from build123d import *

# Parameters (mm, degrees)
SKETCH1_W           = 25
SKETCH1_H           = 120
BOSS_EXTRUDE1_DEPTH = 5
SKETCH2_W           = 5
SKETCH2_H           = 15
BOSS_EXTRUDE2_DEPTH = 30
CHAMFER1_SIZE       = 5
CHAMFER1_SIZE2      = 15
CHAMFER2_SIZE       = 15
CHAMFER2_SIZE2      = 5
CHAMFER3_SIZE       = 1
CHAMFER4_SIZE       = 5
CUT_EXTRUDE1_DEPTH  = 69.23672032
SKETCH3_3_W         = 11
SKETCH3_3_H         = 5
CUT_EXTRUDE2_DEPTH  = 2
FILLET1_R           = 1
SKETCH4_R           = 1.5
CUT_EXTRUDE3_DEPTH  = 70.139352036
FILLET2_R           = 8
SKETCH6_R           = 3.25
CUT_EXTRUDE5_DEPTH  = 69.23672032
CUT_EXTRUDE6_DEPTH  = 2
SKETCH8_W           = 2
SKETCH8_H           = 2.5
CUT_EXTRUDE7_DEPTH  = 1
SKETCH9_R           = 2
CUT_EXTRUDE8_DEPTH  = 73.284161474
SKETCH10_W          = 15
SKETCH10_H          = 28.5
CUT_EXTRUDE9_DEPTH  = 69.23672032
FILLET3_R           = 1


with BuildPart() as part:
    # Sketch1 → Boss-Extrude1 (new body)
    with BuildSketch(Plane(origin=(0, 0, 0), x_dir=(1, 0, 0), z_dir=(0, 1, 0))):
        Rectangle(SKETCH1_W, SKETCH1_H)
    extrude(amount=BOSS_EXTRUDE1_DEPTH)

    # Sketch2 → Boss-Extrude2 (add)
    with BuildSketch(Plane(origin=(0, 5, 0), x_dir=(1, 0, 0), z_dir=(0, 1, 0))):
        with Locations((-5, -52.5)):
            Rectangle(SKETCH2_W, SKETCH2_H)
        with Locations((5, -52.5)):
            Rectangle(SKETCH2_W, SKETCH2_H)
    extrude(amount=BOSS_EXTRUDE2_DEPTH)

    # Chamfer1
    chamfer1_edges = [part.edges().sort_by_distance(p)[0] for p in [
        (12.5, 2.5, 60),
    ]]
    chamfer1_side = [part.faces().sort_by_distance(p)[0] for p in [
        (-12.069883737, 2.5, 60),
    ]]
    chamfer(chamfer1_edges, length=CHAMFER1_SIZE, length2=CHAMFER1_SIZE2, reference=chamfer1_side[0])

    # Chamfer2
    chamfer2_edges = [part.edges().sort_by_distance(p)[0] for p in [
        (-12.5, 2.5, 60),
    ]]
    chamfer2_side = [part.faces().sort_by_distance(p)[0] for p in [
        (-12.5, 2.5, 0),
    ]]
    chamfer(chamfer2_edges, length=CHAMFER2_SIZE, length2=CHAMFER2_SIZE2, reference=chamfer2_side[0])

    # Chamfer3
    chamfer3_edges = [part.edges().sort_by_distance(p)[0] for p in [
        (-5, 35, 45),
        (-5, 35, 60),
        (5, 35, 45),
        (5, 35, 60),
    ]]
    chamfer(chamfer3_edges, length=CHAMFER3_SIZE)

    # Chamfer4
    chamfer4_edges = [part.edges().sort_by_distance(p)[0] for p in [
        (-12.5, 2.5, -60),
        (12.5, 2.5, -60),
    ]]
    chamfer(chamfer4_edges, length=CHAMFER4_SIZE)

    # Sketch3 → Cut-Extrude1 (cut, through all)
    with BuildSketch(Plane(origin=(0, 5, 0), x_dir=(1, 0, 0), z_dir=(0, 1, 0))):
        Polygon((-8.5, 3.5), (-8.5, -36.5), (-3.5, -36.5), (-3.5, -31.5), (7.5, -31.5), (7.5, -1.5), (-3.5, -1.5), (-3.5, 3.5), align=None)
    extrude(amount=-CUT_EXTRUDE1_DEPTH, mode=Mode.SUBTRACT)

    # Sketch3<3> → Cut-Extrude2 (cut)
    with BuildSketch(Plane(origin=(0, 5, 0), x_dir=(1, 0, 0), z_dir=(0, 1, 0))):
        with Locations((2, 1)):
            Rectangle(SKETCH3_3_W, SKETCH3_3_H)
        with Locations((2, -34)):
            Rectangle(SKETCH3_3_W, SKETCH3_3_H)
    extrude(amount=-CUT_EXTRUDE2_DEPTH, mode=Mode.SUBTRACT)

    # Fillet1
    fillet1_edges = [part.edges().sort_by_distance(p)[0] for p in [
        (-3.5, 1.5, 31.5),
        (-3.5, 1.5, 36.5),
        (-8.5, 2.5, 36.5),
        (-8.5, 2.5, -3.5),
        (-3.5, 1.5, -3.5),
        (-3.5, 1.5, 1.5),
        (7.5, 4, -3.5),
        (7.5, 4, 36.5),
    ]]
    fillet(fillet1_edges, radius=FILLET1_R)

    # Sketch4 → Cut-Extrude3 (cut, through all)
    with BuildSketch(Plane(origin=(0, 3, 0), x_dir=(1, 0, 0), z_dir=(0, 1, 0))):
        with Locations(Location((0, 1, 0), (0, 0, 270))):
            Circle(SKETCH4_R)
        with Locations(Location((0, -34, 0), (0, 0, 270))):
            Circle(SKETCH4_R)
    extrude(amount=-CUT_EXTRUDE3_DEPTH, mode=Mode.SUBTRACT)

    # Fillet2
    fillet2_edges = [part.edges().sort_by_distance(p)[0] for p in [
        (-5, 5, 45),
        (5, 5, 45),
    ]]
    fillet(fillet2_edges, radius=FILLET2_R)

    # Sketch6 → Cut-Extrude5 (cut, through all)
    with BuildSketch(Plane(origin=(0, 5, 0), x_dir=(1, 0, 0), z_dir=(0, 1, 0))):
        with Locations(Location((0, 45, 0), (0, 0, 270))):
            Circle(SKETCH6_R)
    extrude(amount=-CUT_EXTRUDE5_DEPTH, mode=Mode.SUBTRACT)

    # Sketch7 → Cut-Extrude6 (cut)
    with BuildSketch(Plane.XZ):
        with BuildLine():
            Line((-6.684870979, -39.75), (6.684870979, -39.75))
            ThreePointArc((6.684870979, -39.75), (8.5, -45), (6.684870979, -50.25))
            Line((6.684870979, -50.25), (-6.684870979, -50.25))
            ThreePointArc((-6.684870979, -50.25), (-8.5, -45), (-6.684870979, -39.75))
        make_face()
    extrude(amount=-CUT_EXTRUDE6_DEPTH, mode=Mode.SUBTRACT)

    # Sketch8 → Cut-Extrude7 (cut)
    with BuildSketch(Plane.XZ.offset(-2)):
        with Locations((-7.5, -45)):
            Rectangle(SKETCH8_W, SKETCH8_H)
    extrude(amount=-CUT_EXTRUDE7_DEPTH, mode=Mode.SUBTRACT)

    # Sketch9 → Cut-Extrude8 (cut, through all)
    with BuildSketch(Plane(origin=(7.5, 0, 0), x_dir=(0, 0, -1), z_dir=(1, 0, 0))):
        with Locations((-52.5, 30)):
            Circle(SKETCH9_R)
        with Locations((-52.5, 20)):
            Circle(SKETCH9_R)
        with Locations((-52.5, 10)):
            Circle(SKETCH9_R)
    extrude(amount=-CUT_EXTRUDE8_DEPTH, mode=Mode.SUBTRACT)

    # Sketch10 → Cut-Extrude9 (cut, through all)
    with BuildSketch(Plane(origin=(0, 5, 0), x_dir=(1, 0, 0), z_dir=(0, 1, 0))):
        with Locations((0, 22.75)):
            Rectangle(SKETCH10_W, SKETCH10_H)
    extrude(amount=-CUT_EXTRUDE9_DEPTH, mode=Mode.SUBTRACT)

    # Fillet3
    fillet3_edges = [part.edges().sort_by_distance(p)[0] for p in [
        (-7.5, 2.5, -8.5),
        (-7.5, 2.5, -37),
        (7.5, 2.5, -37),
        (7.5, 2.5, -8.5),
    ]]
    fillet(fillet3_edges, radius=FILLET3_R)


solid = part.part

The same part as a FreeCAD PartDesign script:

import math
import FreeCAD as App
import Part
import Sketcher


def edges_at(feature, points):
    """Names of the edges that pass closest to the given points."""
    edges = feature.Shape.Edges
    near = lambda p: min(range(len(edges)), key=lambda i: edges[i].distToShape(Part.Vertex(*p))[0])
    return sorted({f"Edge{near(p) + 1}" for p in points})

doc = App.newDocument("Part")
body = doc.addObject("PartDesign::Body", "Body")

# Sketch on XZ plane
sketch1 = body.newObject("Sketcher::SketchObject", "Sketch")
sketch1.AttachmentSupport = (doc.getObject("XZ_Plane"), [""])
sketch1.MapMode = "FlatFace"
sketch1.addGeometry([
    Part.LineSegment(App.Vector(-12, -60, 0), App.Vector(-12, 60, 0)),
    Part.LineSegment(App.Vector(-12, 60, 0), App.Vector(12, 60, 0)),
    Part.LineSegment(App.Vector(12, 60, 0), App.Vector(12, -60, 0)),
    Part.LineSegment(App.Vector(12, -60, 0), App.Vector(-12, -60, 0)),
], False)
sketch1.addConstraint([
    Sketcher.Constraint("Coincident", 0, 2, 1, 1),
    Sketcher.Constraint("Coincident", 1, 2, 2, 1),
    Sketcher.Constraint("Coincident", 2, 2, 3, 1),
    Sketcher.Constraint("Coincident", 3, 2, 0, 1),
    Sketcher.Constraint("Vertical", 0),
    Sketcher.Constraint("Horizontal", 1),
    Sketcher.Constraint("Vertical", 2),
    Sketcher.Constraint("Horizontal", 3),
    Sketcher.Constraint("Symmetric", 0, 2, 2, 2, -1, 1),
    Sketcher.Constraint("DistanceX", 1, 1, 1, 2, 25.0),
    Sketcher.Constraint("DistanceY", 0, 1, 0, 2, 120.0),
])
pad1 = body.newObject("PartDesign::Pad", "Pad")
pad1.Profile = sketch1
pad1.Length = 5
pad1.Reversed = True

# Sketch on XZ plane
sketch2 = body.newObject("Sketcher::SketchObject", "Sketch001")
sketch2.AttachmentSupport = (doc.getObject("XZ_Plane"), [""])
sketch2.MapMode = "FlatFace"
sketch2.AttachmentOffset = App.Placement(App.Vector(0, 0, -5), App.Rotation())
sketch2.addGeometry([
    Part.LineSegment(App.Vector(-8, 45, 0), App.Vector(-8, 60, 0)),  # 0
    Part.LineSegment(App.Vector(-8, 60, 0), App.Vector(-2, 60, 0)),  # 1
    Part.LineSegment(App.Vector(-2, 60, 0), App.Vector(-2, 45, 0)),  # 2
    Part.LineSegment(App.Vector(-2, 45, 0), App.Vector(-8, 45, 0)),  # 3
    Part.LineSegment(App.Vector(2, 45, 0), App.Vector(2, 60, 0)),  # 4
    Part.LineSegment(App.Vector(2, 60, 0), App.Vector(8, 60, 0)),  # 5
    Part.LineSegment(App.Vector(8, 60, 0), App.Vector(8, 45, 0)),  # 6
    Part.LineSegment(App.Vector(8, 45, 0), App.Vector(2, 45, 0)),  # 7
], False)
sketch2.addConstraint([
    Sketcher.Constraint("Coincident", 0, 2, 1, 1),
    Sketcher.Constraint("Coincident", 1, 2, 2, 1),
    Sketcher.Constraint("Coincident", 2, 2, 3, 1),
    Sketcher.Constraint("Coincident", 3, 2, 0, 1),
    Sketcher.Constraint("Coincident", 4, 2, 5, 1),
    Sketcher.Constraint("Coincident", 5, 2, 6, 1),
    Sketcher.Constraint("Coincident", 6, 2, 7, 1),
    Sketcher.Constraint("Coincident", 7, 2, 4, 1),
    Sketcher.Constraint("Vertical", 0),
    Sketcher.Constraint("Horizontal", 1),
    Sketcher.Constraint("Vertical", 2),
    Sketcher.Constraint("Horizontal", 3),
    Sketcher.Constraint("Vertical", 4),
    Sketcher.Constraint("Horizontal", 5),
    Sketcher.Constraint("Vertical", 6),
    Sketcher.Constraint("Horizontal", 7),
    Sketcher.Constraint("Symmetric", 1, 2, 4, 2, -2),
    Sketcher.Constraint("Symmetric", 3, 2, 6, 2, -2),
    Sketcher.Constraint("DistanceX", 1, 1, 1, 2, 5.0),
    Sketcher.Constraint("DistanceY", 0, 1, 0, 2, 15.0),
    Sketcher.Constraint("DistanceY", -1, 1, 0, 2, 60.0),
    Sketcher.Constraint("DistanceX", 1, 2, 4, 2, 5.0),
])
pad2 = body.newObject("PartDesign::Pad", "Pad001")
pad2.Profile = sketch2
pad2.Length = 30
pad2.Reversed = True
doc.recompute()

chamfer = body.newObject("PartDesign::Chamfer", "Chamfer")
chamfer.Base = (pad2, edges_at(pad2, [(12.5, 2.5, 60)]))
chamfer.ChamferType = "Two distances"
chamfer.Size = 5
chamfer.Size2 = 15
chamfer.FlipDirection = True
doc.recompute()

chamfer2 = body.newObject("PartDesign::Chamfer", "Chamfer001")
chamfer2.Base = (chamfer, edges_at(chamfer, [(-12.5, 2.5, 60)]))
chamfer2.ChamferType = "Two distances"
chamfer2.Size = 15
chamfer2.Size2 = 5
chamfer2.FlipDirection = True
doc.recompute()

chamfer3 = body.newObject("PartDesign::Chamfer", "Chamfer002")
chamfer3.Base = (chamfer2, edges_at(chamfer2, [
    (-5, 35, 45),
    (-5, 35, 60),
    (5, 35, 45),
    (5, 35, 60),
]))
chamfer3.Size = 1
doc.recompute()

chamfer4 = body.newObject("PartDesign::Chamfer", "Chamfer003")
chamfer4.Base = (chamfer3, edges_at(chamfer3, [(-12.5, 2.5, -60), (12.5, 2.5, -60)]))
chamfer4.Size = 5

# Sketch on XZ plane
sketch3 = body.newObject("Sketcher::SketchObject", "Sketch002")
sketch3.AttachmentSupport = (doc.getObject("XZ_Plane"), [""])
sketch3.MapMode = "FlatFace"
sketch3.AttachmentOffset = App.Placement(App.Vector(0, 0, -5), App.Rotation())
sketch3.addGeometry([
    Part.LineSegment(App.Vector(-8, -4, 0), App.Vector(-8, 36, 0)),  # 0
    Part.LineSegment(App.Vector(-8, 36, 0), App.Vector(-4, 36, 0)),  # 1
    Part.LineSegment(App.Vector(-4, 36, 0), App.Vector(-4, 32, 0)),  # 2
    Part.LineSegment(App.Vector(-4, 32, 0), App.Vector(8, 32, 0)),  # 3
    Part.LineSegment(App.Vector(8, 32, 0), App.Vector(8, 2, 0)),  # 4
    Part.LineSegment(App.Vector(8, 2, 0), App.Vector(-4, 2, 0)),  # 5
    Part.LineSegment(App.Vector(-4, 2, 0), App.Vector(-4, -4, 0)),  # 6
    Part.LineSegment(App.Vector(-4, -4, 0), App.Vector(-8, -4, 0)),  # 7
], False)
sketch3.addConstraint([
    Sketcher.Constraint("Coincident", 0, 2, 1, 1),
    Sketcher.Constraint("Coincident", 1, 2, 2, 1),
    Sketcher.Constraint("Coincident", 2, 2, 3, 1),
    Sketcher.Constraint("Coincident", 3, 2, 4, 1),
    Sketcher.Constraint("Coincident", 4, 2, 5, 1),
    Sketcher.Constraint("Coincident", 5, 2, 6, 1),
    Sketcher.Constraint("Coincident", 6, 2, 7, 1),
    Sketcher.Constraint("Coincident", 7, 2, 0, 1),
    Sketcher.Constraint("Vertical", 0),
    Sketcher.Constraint("Horizontal", 1),
    Sketcher.Constraint("Vertical", 2),
    Sketcher.Constraint("Horizontal", 3),
    Sketcher.Constraint("Vertical", 4),
    Sketcher.Constraint("Horizontal", 5),
    Sketcher.Constraint("Vertical", 6),
    Sketcher.Constraint("Horizontal", 7),
    Sketcher.Constraint("Vertical", 2, 2, 5, 2),
    Sketcher.Constraint("Equal", 7, 2),
    Sketcher.Constraint("Equal", 2, 6),
    Sketcher.Constraint("DistanceX", 1, 1, 1, 2, 5.0),
    Sketcher.Constraint("DistanceX", 3, 1, 3, 2, 11.0),
    Sketcher.Constraint("DistanceY", 0, 1, 0, 2, 40.0),
    Sketcher.Constraint("DistanceX", 0, 2, -1, 1, 8.5),
    Sketcher.Constraint("DistanceY", -1, 1, 0, 2, 36.5),
])
pocket1 = body.newObject("PartDesign::Pocket", "Pocket")
pocket1.Profile = sketch3
pocket1.Type = "ThroughAll"
pocket1.Reversed = True

# Sketch on XZ plane
sketch4 = body.newObject("Sketcher::SketchObject", "Sketch003")
sketch4.AttachmentSupport = (doc.getObject("XZ_Plane"), [""])
sketch4.MapMode = "FlatFace"
sketch4.AttachmentOffset = App.Placement(App.Vector(0, 0, -5), App.Rotation())
sketch4.addGeometry([
    Part.LineSegment(App.Vector(-4, -4, 0), App.Vector(-4, 2, 0)),  # 0
    Part.LineSegment(App.Vector(-4, 2, 0), App.Vector(8, 2, 0)),  # 1
    Part.LineSegment(App.Vector(8, 2, 0), App.Vector(8, -4, 0)),  # 2
    Part.LineSegment(App.Vector(8, -4, 0), App.Vector(-4, -4, 0)),  # 3
    Part.LineSegment(App.Vector(-4, 32, 0), App.Vector(-4, 36, 0)),  # 4
    Part.LineSegment(App.Vector(-4, 36, 0), App.Vector(8, 36, 0)),  # 5
    Part.LineSegment(App.Vector(8, 36, 0), App.Vector(8, 32, 0)),  # 6
    Part.LineSegment(App.Vector(8, 32, 0), App.Vector(-4, 32, 0)),  # 7
], False)
sketch4.addConstraint([
    Sketcher.Constraint("Coincident", 0, 2, 1, 1),
    Sketcher.Constraint("Coincident", 1, 2, 2, 1),
    Sketcher.Constraint("Coincident", 2, 2, 3, 1),
    Sketcher.Constraint("Coincident", 3, 2, 0, 1),
    Sketcher.Constraint("Coincident", 4, 2, 5, 1),
    Sketcher.Constraint("Coincident", 5, 2, 6, 1),
    Sketcher.Constraint("Coincident", 6, 2, 7, 1),
    Sketcher.Constraint("Coincident", 7, 2, 4, 1),
    Sketcher.Constraint("Vertical", 0),
    Sketcher.Constraint("Horizontal", 1),
    Sketcher.Constraint("Vertical", 2),
    Sketcher.Constraint("Horizontal", 3),
    Sketcher.Constraint("Vertical", 4),
    Sketcher.Constraint("Horizontal", 5),
    Sketcher.Constraint("Vertical", 6),
    Sketcher.Constraint("Horizontal", 7),
    Sketcher.Constraint("Vertical", 3, 2, 4, 2),
    Sketcher.Constraint("Vertical", 2, 2, 5, 2),
    Sketcher.Constraint("Equal", 2, 4),
    Sketcher.Constraint("DistanceX", 1, 1, 1, 2, 11.0),
    Sketcher.Constraint("DistanceY", 0, 1, 0, 2, 5.0),
    Sketcher.Constraint("DistanceY", 0, 2, 4, 2, 35.0),
    Sketcher.Constraint("DistanceX", 0, 2, -1, 1, 3.5),
    Sketcher.Constraint("DistanceY", -1, 1, 0, 2, 1.5),
])
pocket2 = body.newObject("PartDesign::Pocket", "Pocket001")
pocket2.Profile = sketch4
pocket2.Length = 2
pocket2.Reversed = True
doc.recompute()

fillet = body.newObject("PartDesign::Fillet", "Fillet")
fillet.Base = (pocket2, edges_at(pocket2, [
    (-3.5, 1.5, 31.5),
    (-3.5, 1.5, 36.5),
    (-8.5, 2.5, 36.5),
    (-8.5, 2.5, -3.5),
    (-3.5, 1.5, -3.5),
    (-3.5, 1.5, 1.5),
    (7.5, 4, -3.5),
    (7.5, 4, 36.5),
]))
fillet.Radius = 1

# Sketch on XZ plane
sketch5 = body.newObject("Sketcher::SketchObject", "Sketch004")
sketch5.AttachmentSupport = (doc.getObject("XZ_Plane"), [""])
sketch5.MapMode = "FlatFace"
sketch5.AttachmentOffset = App.Placement(App.Vector(0, 0, -3), App.Rotation())
sketch5.addGeometry([
    Part.Circle(App.Vector(0, -1, 0), App.Vector(0, 0, 1), 1.5),
    Part.Circle(App.Vector(0, 34, 0), App.Vector(0, 0, 1), 1.5),
], False)
sketch5.addConstraint([
    Sketcher.Constraint("Equal", 0, 1),
    Sketcher.Constraint("PointOnObject", 0, 3, -2),
    Sketcher.Constraint("PointOnObject", 1, 3, -2),
    Sketcher.Constraint("Diameter", 0, 3.0),
    Sketcher.Constraint("DistanceY", 0, 3, -1, 1, 1.0),
    Sketcher.Constraint("DistanceY", -1, 1, 1, 3, 34.0),
])
pocket3 = body.newObject("PartDesign::Pocket", "Pocket002")
pocket3.Profile = sketch5
pocket3.Type = "ThroughAll"
pocket3.Reversed = True
doc.recompute()

fillet2 = body.newObject("PartDesign::Fillet", "Fillet001")
fillet2.Base = (pocket3, edges_at(pocket3, [(-5, 5, 45), (5, 5, 45)]))
fillet2.Radius = 8

# Sketch on XZ plane
sketch6 = body.newObject("Sketcher::SketchObject", "Sketch005")
sketch6.AttachmentSupport = (doc.getObject("XZ_Plane"), [""])
sketch6.MapMode = "FlatFace"
sketch6.AttachmentOffset = App.Placement(App.Vector(0, 0, -5), App.Rotation())
sketch6.addGeometry(Part.Circle(App.Vector(0, -45, 0), App.Vector(0, 0, 1), 3.2), False)
sketch6.addConstraint([
    Sketcher.Constraint("PointOnObject", 0, 3, -2),
    Sketcher.Constraint("Diameter", 0, 6.5),
    Sketcher.Constraint("DistanceY", 0, 3, -1, 1, 45.0),
])
pocket4 = body.newObject("PartDesign::Pocket", "Pocket003")
pocket4.Profile = sketch6
pocket4.Type = "ThroughAll"
pocket4.Reversed = True

# Sketch on XZ plane
sketch7 = body.newObject("Sketcher::SketchObject", "Sketch006")
sketch7.AttachmentSupport = (doc.getObject("XZ_Plane"), [""])
sketch7.MapMode = "FlatFace"
sketch7.addGeometry([
    Part.LineSegment(App.Vector(7, -40, 0), App.Vector(-7, -40, 0)),
    Part.ArcOfCircle(Part.Circle(App.Vector(0, -45, 0), App.Vector(0, 0, 1), 9), math.radians(142), math.radians(218)),
    Part.LineSegment(App.Vector(-7, -50, 0), App.Vector(7, -50, 0)),
    Part.ArcOfCircle(Part.Circle(App.Vector(0, -45, 0), App.Vector(0, 0, 1), 9), math.radians(-38), math.radians(38)),
], False)
sketch7.addConstraint([
    Sketcher.Constraint("Coincident", 0, 2, 1, 1),
    Sketcher.Constraint("Coincident", 1, 2, 2, 1),
    Sketcher.Constraint("Coincident", 2, 2, 3, 1),
    Sketcher.Constraint("Coincident", 3, 2, 0, 1),
    Sketcher.Constraint("Horizontal", 0),
    Sketcher.Constraint("Horizontal", 2),
    Sketcher.Constraint("Coincident", 3, 3, 1, 3),
    Sketcher.Constraint("Equal", 1, 3),
    Sketcher.Constraint("PointOnObject", 1, 3, -2),
    Sketcher.Constraint("Vertical", 0, 2, 1, 2),
    Sketcher.Constraint("Radius", 1, 8.5),
    Sketcher.Constraint("DistanceY", 1, 3, -1, 1, 45.0),
    Sketcher.Constraint("DistanceY", 1, 2, 0, 2, 10.5),
])
pocket5 = body.newObject("PartDesign::Pocket", "Pocket004")
pocket5.Profile = sketch7
pocket5.Length = 2

# Sketch on XZ plane
sketch8 = body.newObject("Sketcher::SketchObject", "Sketch007")
sketch8.AttachmentSupport = (doc.getObject("XZ_Plane"), [""])
sketch8.MapMode = "FlatFace"
sketch8.AttachmentOffset = App.Placement(App.Vector(0, 0, -2), App.Rotation())
sketch8.addGeometry([
    Part.LineSegment(App.Vector(-8.5, -43.8, 0), App.Vector(-8.5, -46.2, 0)),
    Part.LineSegment(App.Vector(-8.5, -46.2, 0), App.Vector(-6.5, -46.2, 0)),
    Part.LineSegment(App.Vector(-6.5, -46.2, 0), App.Vector(-6.5, -43.8, 0)),
    Part.LineSegment(App.Vector(-6.5, -43.8, 0), App.Vector(-8.5, -43.8, 0)),
], False)
sketch8.addConstraint([
    Sketcher.Constraint("Coincident", 0, 2, 1, 1),
    Sketcher.Constraint("Coincident", 1, 2, 2, 1),
    Sketcher.Constraint("Coincident", 2, 2, 3, 1),
    Sketcher.Constraint("Coincident", 3, 2, 0, 1),
    Sketcher.Constraint("Vertical", 0),
    Sketcher.Constraint("Horizontal", 1),
    Sketcher.Constraint("Vertical", 2),
    Sketcher.Constraint("Horizontal", 3),
    Sketcher.Constraint("DistanceX", 1, 1, 1, 2, 2.0),
    Sketcher.Constraint("DistanceY", 0, 2, 0, 1, 2.5),
    Sketcher.Constraint("DistanceX", 0, 2, -1, 1, 8.5),
    Sketcher.Constraint("DistanceY", 0, 2, -1, 1, 46.25),
])
pocket6 = body.newObject("PartDesign::Pocket", "Pocket005")
pocket6.Profile = sketch8
pocket6.Length = 1

# Sketch on YZ plane
sketch9 = body.newObject("Sketcher::SketchObject", "Sketch008")
sketch9.AttachmentSupport = (doc.getObject("YZ_Plane"), [""])
sketch9.MapMode = "FlatFace"
sketch9.AttachmentOffset = App.Placement(App.Vector(0, 0, 7.5), App.Rotation())
sketch9.addGeometry([
    Part.Circle(App.Vector(30, 52.5, 0), App.Vector(0, 0, 1), 2),
    Part.Circle(App.Vector(20, 52.5, 0), App.Vector(0, 0, 1), 2),
    Part.Circle(App.Vector(10, 52.5, 0), App.Vector(0, 0, 1), 2),
], False)
sketch9.addConstraint([
    Sketcher.Constraint("Equal", 0, 1),
    Sketcher.Constraint("Equal", 1, 2),
    Sketcher.Constraint("Horizontal", 0, 3, 1, 3),
    Sketcher.Constraint("Horizontal", 1, 3, 2, 3),
    Sketcher.Constraint("Diameter", 0, 4.0),
    Sketcher.Constraint("DistanceX", -1, 1, 0, 3, 30.0),
    Sketcher.Constraint("DistanceX", -1, 1, 1, 3, 20.0),
    Sketcher.Constraint("DistanceX", -1, 1, 2, 3, 10.0),
    Sketcher.Constraint("DistanceY", -1, 1, 0, 3, 52.5),
])
pocket7 = body.newObject("PartDesign::Pocket", "Pocket006")
pocket7.Profile = sketch9
pocket7.Type = "ThroughAll"

# Sketch on XZ plane
sketch10 = body.newObject("Sketcher::SketchObject", "Sketch009")
sketch10.AttachmentSupport = (doc.getObject("XZ_Plane"), [""])
sketch10.MapMode = "FlatFace"
sketch10.AttachmentOffset = App.Placement(App.Vector(0, 0, -5), App.Rotation())
sketch10.addGeometry([
    Part.LineSegment(App.Vector(-8, -37, 0), App.Vector(-8, -8, 0)),
    Part.LineSegment(App.Vector(-8, -8, 0), App.Vector(8, -8, 0)),
    Part.LineSegment(App.Vector(8, -8, 0), App.Vector(8, -37, 0)),
    Part.LineSegment(App.Vector(8, -37, 0), App.Vector(-8, -37, 0)),
], False)
sketch10.addConstraint([
    Sketcher.Constraint("Coincident", 0, 2, 1, 1),
    Sketcher.Constraint("Coincident", 1, 2, 2, 1),
    Sketcher.Constraint("Coincident", 2, 2, 3, 1),
    Sketcher.Constraint("Coincident", 3, 2, 0, 1),
    Sketcher.Constraint("Vertical", 0),
    Sketcher.Constraint("Horizontal", 1),
    Sketcher.Constraint("Vertical", 2),
    Sketcher.Constraint("Horizontal", 3),
    Sketcher.Constraint("DistanceX", 1, 1, 1, 2, 15.0),
    Sketcher.Constraint("DistanceY", 0, 1, 0, 2, 28.5),
    Sketcher.Constraint("DistanceY", 2, 2, -1, 1, 37.0),
    Sketcher.Constraint("DistanceX", 0, 2, -1, 1, 7.5),
])
pocket8 = body.newObject("PartDesign::Pocket", "Pocket007")
pocket8.Profile = sketch10
pocket8.Type = "ThroughAll"
pocket8.Reversed = True
doc.recompute()

fillet3 = body.newObject("PartDesign::Fillet", "Fillet002")
fillet3.Base = (pocket8, edges_at(pocket8, [
    (-7.5, 2.5, -8.5),
    (-7.5, 2.5, -37),
    (7.5, 2.5, -37),
    (7.5, 2.5, -8.5),
]))
fillet3.Radius = 1

doc.recompute()
